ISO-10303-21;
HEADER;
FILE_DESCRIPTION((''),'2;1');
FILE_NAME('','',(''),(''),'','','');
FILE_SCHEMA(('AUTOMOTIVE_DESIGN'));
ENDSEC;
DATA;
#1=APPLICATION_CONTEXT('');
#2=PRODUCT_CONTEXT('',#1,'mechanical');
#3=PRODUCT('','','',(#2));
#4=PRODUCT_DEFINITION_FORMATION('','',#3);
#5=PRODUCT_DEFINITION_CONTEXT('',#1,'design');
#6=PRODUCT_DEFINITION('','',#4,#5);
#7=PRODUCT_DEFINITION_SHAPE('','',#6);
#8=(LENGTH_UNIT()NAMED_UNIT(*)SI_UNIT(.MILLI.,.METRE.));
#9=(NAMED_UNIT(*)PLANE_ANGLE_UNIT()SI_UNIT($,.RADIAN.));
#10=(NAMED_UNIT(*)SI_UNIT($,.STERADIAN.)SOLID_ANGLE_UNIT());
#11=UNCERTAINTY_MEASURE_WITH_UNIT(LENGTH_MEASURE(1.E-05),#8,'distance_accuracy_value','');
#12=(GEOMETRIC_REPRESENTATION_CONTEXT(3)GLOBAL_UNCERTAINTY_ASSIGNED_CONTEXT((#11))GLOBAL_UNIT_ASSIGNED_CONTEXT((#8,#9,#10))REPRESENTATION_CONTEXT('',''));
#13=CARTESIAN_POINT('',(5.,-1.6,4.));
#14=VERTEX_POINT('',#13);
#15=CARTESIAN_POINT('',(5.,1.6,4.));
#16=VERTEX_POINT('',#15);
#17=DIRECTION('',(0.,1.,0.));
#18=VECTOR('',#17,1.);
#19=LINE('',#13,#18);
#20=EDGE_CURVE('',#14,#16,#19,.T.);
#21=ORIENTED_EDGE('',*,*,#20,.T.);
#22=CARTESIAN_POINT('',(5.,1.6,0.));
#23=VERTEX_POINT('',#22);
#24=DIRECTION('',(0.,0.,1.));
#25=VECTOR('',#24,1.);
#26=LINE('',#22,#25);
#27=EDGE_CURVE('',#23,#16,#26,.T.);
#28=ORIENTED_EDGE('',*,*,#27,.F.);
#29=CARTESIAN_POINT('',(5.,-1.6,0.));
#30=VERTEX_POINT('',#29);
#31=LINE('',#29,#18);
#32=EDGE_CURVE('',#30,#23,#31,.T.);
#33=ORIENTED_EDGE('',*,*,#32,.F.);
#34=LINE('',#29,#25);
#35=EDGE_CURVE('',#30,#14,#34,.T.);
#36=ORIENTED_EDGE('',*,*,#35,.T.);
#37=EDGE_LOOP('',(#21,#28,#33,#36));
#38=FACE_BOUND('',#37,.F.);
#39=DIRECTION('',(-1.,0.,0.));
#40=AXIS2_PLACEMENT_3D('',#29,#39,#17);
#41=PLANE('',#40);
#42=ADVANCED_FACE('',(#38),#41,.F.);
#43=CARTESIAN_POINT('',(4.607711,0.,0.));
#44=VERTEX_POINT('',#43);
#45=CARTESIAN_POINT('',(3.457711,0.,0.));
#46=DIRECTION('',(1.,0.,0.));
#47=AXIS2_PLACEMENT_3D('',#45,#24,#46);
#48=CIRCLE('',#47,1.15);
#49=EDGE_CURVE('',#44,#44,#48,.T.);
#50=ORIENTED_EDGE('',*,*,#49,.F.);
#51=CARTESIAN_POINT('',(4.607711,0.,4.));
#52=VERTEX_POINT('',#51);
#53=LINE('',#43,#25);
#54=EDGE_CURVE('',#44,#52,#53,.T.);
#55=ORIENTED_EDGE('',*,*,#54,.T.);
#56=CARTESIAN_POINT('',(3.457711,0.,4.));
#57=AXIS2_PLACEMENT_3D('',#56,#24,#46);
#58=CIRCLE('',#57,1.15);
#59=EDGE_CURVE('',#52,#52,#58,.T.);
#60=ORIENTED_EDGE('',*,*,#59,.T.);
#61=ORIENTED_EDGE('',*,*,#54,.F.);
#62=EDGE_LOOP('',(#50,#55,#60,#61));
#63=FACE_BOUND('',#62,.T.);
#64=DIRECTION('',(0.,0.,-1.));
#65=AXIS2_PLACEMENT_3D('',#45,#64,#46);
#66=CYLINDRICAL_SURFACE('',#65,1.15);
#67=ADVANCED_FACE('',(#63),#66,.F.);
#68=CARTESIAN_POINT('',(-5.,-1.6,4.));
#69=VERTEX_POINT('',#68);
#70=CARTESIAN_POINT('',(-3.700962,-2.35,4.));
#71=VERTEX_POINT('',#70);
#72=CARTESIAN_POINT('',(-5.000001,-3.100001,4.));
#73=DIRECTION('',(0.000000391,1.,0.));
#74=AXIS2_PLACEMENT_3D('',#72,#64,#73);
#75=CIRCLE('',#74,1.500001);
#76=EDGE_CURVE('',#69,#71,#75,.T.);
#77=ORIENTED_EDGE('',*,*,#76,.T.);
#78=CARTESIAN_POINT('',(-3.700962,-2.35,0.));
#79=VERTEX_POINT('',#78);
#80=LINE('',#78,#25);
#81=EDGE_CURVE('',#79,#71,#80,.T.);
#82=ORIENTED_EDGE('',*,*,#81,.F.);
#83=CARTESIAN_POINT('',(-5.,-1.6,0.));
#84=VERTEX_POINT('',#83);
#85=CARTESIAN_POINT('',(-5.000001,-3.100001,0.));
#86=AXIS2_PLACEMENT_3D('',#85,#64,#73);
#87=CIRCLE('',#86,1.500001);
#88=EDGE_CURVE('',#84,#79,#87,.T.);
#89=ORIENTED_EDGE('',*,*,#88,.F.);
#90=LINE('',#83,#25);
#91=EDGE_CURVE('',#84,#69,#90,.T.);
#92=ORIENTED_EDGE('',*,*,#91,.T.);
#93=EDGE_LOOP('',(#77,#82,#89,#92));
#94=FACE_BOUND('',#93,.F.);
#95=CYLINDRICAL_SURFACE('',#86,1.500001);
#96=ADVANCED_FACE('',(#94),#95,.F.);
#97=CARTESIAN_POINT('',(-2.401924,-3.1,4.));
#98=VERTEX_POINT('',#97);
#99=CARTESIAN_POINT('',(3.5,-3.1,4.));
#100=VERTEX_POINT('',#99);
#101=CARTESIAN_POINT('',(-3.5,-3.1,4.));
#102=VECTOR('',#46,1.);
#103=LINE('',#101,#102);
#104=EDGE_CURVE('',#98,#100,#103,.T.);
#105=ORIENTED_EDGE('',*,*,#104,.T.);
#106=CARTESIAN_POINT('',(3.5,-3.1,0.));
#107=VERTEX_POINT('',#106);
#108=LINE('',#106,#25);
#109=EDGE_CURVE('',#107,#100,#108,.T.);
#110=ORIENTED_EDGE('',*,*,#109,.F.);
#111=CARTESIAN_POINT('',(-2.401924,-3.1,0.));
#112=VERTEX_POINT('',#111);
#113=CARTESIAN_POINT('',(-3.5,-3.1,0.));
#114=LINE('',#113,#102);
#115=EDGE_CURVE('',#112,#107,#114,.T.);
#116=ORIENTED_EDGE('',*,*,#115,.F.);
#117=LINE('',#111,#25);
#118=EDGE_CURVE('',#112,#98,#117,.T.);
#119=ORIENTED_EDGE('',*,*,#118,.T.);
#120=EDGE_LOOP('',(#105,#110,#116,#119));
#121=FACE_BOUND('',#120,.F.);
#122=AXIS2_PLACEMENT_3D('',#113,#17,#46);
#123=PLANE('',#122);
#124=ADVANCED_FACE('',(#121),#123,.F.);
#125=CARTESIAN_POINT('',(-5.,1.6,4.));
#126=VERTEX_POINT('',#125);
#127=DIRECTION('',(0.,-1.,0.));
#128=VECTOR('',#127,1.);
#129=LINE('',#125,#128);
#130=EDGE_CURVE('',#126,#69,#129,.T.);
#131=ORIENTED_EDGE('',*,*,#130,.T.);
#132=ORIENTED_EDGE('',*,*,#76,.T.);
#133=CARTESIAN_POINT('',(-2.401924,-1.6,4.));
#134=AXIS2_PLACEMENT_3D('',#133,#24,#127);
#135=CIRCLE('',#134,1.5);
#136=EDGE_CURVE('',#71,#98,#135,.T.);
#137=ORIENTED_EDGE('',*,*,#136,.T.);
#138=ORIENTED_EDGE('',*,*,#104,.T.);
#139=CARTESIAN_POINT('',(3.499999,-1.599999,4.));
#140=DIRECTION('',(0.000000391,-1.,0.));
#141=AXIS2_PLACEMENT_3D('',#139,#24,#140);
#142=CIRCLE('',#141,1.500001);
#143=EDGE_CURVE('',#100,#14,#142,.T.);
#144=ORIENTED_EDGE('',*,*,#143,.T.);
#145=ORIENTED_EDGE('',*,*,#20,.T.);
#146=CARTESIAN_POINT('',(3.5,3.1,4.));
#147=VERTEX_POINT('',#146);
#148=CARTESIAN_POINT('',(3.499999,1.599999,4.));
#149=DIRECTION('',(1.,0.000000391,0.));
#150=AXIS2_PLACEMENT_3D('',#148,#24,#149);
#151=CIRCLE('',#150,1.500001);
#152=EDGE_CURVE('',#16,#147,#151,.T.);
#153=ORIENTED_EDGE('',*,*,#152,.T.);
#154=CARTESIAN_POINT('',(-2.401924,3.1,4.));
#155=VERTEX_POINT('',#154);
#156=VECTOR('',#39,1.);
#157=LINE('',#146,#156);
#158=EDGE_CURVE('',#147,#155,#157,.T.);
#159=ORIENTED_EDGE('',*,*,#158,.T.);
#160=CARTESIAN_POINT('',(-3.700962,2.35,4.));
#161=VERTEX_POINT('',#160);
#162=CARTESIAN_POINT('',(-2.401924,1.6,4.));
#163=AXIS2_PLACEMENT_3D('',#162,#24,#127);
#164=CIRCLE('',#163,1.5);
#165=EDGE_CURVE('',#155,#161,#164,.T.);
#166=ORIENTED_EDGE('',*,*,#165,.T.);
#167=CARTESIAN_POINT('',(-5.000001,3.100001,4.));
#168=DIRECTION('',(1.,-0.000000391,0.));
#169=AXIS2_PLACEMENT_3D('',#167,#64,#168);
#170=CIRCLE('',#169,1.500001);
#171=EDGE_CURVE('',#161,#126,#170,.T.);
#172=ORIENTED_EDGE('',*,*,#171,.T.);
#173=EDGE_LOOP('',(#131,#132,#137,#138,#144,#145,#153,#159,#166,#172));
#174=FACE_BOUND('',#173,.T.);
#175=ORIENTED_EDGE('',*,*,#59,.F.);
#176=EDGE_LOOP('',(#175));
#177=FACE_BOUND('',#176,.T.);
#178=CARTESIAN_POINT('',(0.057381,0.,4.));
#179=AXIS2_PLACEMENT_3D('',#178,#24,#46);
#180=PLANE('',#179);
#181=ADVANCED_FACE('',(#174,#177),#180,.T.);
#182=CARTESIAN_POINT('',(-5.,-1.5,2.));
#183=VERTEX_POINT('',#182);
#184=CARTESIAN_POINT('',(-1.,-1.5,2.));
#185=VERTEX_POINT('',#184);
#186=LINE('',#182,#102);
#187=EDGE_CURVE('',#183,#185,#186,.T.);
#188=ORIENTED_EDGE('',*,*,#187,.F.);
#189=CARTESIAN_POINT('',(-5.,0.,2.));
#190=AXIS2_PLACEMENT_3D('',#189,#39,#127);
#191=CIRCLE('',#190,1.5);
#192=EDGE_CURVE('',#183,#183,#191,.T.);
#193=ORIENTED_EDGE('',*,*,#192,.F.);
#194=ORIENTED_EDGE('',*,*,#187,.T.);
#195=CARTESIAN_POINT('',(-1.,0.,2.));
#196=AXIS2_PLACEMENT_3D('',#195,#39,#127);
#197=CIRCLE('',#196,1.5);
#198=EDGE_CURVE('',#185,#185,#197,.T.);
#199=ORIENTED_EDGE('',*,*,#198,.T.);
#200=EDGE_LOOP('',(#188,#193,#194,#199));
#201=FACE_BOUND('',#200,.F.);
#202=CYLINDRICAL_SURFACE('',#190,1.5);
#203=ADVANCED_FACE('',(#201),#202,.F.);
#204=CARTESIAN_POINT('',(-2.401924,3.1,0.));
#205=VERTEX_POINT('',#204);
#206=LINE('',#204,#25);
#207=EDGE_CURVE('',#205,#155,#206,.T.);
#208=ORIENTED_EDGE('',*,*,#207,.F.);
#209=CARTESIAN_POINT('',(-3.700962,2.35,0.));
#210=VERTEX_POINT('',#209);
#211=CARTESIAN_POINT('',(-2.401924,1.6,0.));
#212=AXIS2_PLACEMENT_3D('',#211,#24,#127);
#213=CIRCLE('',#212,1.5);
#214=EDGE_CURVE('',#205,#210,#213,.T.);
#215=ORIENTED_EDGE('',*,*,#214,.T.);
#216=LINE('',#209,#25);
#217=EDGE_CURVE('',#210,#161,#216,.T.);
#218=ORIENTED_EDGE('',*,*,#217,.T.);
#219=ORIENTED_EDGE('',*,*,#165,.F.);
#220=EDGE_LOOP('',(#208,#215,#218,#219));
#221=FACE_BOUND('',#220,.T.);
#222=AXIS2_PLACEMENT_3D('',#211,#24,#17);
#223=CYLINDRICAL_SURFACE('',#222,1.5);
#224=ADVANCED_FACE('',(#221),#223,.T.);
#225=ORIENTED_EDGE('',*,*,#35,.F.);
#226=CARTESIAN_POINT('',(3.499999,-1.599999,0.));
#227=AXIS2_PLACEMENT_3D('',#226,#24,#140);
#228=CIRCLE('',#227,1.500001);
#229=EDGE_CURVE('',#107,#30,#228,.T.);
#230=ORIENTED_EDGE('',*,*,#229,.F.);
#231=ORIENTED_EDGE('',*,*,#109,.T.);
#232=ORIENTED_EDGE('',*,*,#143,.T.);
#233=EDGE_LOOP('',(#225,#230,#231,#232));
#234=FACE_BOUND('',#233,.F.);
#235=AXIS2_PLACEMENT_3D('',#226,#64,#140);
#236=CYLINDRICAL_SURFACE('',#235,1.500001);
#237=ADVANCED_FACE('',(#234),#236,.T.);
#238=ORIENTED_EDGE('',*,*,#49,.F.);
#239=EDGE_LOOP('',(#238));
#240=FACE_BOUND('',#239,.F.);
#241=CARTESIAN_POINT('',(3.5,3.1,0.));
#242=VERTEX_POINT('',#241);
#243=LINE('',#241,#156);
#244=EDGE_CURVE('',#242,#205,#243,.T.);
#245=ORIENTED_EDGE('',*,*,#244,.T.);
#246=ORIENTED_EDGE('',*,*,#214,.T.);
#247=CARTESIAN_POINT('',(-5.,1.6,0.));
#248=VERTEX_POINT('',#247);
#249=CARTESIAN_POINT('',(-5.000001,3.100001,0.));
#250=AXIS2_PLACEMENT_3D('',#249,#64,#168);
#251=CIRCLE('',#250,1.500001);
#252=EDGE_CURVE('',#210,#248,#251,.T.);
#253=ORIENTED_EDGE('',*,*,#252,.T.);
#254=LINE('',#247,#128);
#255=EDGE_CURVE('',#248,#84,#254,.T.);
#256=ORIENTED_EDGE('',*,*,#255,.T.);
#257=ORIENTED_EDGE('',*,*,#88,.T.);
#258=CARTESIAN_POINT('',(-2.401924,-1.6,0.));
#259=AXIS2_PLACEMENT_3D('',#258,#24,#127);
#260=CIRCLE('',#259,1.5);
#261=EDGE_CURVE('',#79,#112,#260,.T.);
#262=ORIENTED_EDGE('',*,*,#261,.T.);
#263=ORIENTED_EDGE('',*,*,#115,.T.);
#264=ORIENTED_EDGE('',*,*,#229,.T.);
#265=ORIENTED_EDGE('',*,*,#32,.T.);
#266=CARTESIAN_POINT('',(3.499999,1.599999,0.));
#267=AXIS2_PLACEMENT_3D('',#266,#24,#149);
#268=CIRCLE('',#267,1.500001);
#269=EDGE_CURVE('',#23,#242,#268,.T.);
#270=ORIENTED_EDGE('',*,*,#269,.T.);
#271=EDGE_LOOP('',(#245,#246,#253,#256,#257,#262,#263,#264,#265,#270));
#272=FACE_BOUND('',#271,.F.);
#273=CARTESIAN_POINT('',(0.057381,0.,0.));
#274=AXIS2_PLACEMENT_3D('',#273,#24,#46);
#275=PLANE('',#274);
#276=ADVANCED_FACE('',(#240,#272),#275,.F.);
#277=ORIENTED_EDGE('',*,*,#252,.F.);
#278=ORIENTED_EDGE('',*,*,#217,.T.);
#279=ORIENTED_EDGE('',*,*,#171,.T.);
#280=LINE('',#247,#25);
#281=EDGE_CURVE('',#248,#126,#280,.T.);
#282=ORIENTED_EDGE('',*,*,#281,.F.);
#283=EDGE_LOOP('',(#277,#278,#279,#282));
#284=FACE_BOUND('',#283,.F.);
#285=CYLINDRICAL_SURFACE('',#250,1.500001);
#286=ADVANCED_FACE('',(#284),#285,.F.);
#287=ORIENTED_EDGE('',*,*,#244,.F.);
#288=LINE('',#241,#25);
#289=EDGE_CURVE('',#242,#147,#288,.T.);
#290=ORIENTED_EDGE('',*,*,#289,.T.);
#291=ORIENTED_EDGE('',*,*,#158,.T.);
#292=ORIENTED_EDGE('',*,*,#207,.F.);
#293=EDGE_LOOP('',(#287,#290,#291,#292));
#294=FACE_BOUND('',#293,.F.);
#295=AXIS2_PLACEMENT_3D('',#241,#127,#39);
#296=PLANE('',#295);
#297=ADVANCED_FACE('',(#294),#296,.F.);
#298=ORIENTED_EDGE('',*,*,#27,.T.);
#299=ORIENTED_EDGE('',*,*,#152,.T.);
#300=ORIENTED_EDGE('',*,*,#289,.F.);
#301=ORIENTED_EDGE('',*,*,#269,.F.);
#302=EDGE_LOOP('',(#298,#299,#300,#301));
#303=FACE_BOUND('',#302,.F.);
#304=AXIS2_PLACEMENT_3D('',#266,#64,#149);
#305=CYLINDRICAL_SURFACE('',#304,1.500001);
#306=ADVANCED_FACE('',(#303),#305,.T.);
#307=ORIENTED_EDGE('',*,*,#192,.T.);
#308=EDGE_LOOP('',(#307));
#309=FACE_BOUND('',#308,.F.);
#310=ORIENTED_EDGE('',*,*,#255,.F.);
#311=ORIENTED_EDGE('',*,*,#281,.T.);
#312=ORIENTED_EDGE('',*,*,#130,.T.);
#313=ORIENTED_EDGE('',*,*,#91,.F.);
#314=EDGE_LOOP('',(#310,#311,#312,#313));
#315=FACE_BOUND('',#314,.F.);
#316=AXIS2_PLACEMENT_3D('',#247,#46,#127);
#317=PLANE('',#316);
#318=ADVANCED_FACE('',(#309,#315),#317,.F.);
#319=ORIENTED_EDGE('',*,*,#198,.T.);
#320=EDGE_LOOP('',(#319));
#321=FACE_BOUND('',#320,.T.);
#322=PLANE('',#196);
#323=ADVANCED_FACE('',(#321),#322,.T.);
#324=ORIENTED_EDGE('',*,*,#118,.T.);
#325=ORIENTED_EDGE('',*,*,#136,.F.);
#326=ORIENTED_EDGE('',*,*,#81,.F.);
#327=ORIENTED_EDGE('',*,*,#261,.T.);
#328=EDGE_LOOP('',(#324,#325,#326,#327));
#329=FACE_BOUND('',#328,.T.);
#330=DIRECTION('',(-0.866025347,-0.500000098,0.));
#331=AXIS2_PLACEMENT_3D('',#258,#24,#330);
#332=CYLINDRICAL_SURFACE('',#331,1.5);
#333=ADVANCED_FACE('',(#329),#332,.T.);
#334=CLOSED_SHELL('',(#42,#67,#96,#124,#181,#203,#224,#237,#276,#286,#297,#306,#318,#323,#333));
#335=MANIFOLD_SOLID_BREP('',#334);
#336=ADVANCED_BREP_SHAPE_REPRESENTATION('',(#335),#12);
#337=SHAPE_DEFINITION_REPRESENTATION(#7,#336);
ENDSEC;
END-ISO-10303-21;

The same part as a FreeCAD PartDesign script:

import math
import FreeCAD as App
import Part
import Sketcher
from FreeCAD import Vector


def edges_at(feature, points):
    """Names of the edges that pass closest to the given points."""
    edges = feature.Shape.Edges
    near = lambda p: min(range(len(edges)), key=lambda i: edges[i].distToShape(Part.Vertex(*p))[0])
    return sorted({f"Edge{near(p) + 1}" for p in points})

doc = App.newDocument("Part")
params = doc.addObject("Spreadsheet::Sheet", "Params")
for row, (alias, value) in enumerate([
    ("sketch1_diameter", "2.3 mm"),
    ("sketch1_radius", "1.500001 mm"),
    ("sketch1_width", "7 mm"),
    ("sketch1_height", "3.2 mm"),
    ("pad1_length", "4 mm"),
    ("fillet_radius", "1.5 mm"),
    ("sketch2_diameter", "3 mm"),
    ("pocket1_length", "4 mm"),
], start=1):
    params.set(f"A{row}", alias)
    params.set(f"B{row}", "=" + value)
    params.setAlias(f"B{row}", alias)

body = doc.addObject("PartDesign::Body", "Body")

# Sketch on XY plane
sketch1 = body.newObject("Sketcher::SketchObject", "Sketch")
sketch1.AttachmentSupport = (doc.getObject("XY_Plane"), [""])
sketch1.MapMode = "FlatFace"
sketch1.addGeometry([
    Part.LineSegment(Vector(3.5, 3.1, 0), Vector(-3.5, 3.1, 0)),  # 0
    Part.ArcOfCircle(Part.Circle(Vector(-5.000001, 3.100001, 0), Vector(0, 0, 1), 1.500001), math.radians(-89.999978), math.radians(-0.000022)),  # 1
    Part.LineSegment(Vector(-5, 1.6, 0), Vector(-5, -1.6, 0)),  # 2
    Part.ArcOfCircle(Part.Circle(Vector(-5.000001, -3.100001, 0), Vector(0, 0, 1), 1.500001), math.radians(0.000022), math.radians(89.999978)),  # 3
    Part.LineSegment(Vector(-3.5, -3.1, 0), Vector(3.5, -3.1, 0)),  # 4
    Part.ArcOfCircle(Part.Circle(Vector(3.499999, -1.599999, 0), Vector(0, 0, 1), 1.500001), math.radians(-89.999978), math.radians(-0.000022)),  # 5
    Part.LineSegment(Vector(5, -1.6, 0), Vector(5, 1.6, 0)),  # 6
    Part.ArcOfCircle(Part.Circle(Vector(3.499999, 1.599999, 0), Vector(0, 0, 1), 1.500001), math.radians(0.000022), math.radians(89.999978)),  # 7
    Part.Circle(Vector(3.457711, 0, 0), Vector(0, 0, 1), 1.15),  # 8
], False)
sketch1.addConstraint([
    Sketcher.Constraint("Coincident", 0, 2, 1, 2),
    Sketcher.Constraint("Coincident", 1, 1, 2, 1),
    Sketcher.Constraint("Coincident", 2, 2, 3, 2),
    Sketcher.Constraint("Coincident", 3, 1, 4, 1),
    Sketcher.Constraint("Tangent", 4, 2, 5, 1),
    Sketcher.Constraint("Tangent", 5, 2, 6, 1),
    Sketcher.Constraint("Tangent", 6, 2, 7, 1),
    Sketcher.Constraint("Tangent", 7, 2, 0, 1),
    Sketcher.Constraint("Horizontal", 0),
    Sketcher.Constraint("Vertical", 2),
    Sketcher.Constraint("Horizontal", 4),
    Sketcher.Constraint("Vertical", 6),
    Sketcher.Constraint("Equal", 1, 3),
    Sketcher.Constraint("Equal", 3, 5),
    Sketcher.Constraint("Equal", 5, 7),
    Sketcher.Constraint("Symmetric", 0, 2, 4, 2, -1, 1),
    Sketcher.Constraint("Symmetric", 1, 1, 5, 2, -1, 1),
    Sketcher.Constraint("Symmetric", 1, 3, 3, 3, -1),
    Sketcher.Constraint("PointOnObject", 8, 3, -1),
    Sketcher.Constraint("Diameter", 8, 2.3),
    Sketcher.Constraint("Radius", 1, 1.500001),
    Sketcher.Constraint("DistanceX", 0, 2, 0, 1, 7.0),
    Sketcher.Constraint("DistanceY", 2, 2, 2, 1, 3.2),
    Sketcher.Constraint("DistanceX", -1, 1, 8, 3, 3.457711),
])
sketch1.setExpression("Constraints[19]", "Params.sketch1_diameter")
sketch1.setExpression("Constraints[20]", "Params.sketch1_radius")
sketch1.setExpression("Constraints[21]", "Params.sketch1_width")
sketch1.setExpression("Constraints[22]", "Params.sketch1_height")
pad1 = body.newObject("PartDesign::Pad", "Pad")
pad1.Profile = sketch1
pad1.setExpression("Length", "Params.pad1_length")
doc.recompute()

fillet = body.newObject("PartDesign::Fillet", "Fillet")
fillet.Base = (pad1, edges_at(pad1, [(-3.5, -3.1, 2), (-3.5, 3.1, 2)]))
fillet.setExpression("Radius", "Params.fillet_radius")

# Sketch on YZ plane
sketch2 = body.newObject("Sketcher::SketchObject", "Sketch001")
sketch2.AttachmentSupport = (doc.getObject("YZ_Plane"), [""])
sketch2.MapMode = "FlatFace"
sketch2.AttachmentOffset = App.Placement(Vector(0, 0, -5), App.Rotation())
sketch2.addGeometry(Part.Circle(Vector(0, 2, 0), Vector(0, 0, 1), 1.5), False)
sketch2.addConstraint([
    Sketcher.Constraint("PointOnObject", 0, 3, -2),
    Sketcher.Constraint("Diameter", 0, 3.0),
    Sketcher.Constraint("DistanceY", -1, 1, 0, 3, 2.0),
])
sketch2.setExpression("Constraints[1]", "Params.sketch2_diameter")
pocket1 = body.newObject("PartDesign::Pocket", "Pocket")
pocket1.Profile = sketch2
pocket1.setExpression("Length", "Params.pocket1_length")
pocket1.Reversed = True

doc.recompute()
